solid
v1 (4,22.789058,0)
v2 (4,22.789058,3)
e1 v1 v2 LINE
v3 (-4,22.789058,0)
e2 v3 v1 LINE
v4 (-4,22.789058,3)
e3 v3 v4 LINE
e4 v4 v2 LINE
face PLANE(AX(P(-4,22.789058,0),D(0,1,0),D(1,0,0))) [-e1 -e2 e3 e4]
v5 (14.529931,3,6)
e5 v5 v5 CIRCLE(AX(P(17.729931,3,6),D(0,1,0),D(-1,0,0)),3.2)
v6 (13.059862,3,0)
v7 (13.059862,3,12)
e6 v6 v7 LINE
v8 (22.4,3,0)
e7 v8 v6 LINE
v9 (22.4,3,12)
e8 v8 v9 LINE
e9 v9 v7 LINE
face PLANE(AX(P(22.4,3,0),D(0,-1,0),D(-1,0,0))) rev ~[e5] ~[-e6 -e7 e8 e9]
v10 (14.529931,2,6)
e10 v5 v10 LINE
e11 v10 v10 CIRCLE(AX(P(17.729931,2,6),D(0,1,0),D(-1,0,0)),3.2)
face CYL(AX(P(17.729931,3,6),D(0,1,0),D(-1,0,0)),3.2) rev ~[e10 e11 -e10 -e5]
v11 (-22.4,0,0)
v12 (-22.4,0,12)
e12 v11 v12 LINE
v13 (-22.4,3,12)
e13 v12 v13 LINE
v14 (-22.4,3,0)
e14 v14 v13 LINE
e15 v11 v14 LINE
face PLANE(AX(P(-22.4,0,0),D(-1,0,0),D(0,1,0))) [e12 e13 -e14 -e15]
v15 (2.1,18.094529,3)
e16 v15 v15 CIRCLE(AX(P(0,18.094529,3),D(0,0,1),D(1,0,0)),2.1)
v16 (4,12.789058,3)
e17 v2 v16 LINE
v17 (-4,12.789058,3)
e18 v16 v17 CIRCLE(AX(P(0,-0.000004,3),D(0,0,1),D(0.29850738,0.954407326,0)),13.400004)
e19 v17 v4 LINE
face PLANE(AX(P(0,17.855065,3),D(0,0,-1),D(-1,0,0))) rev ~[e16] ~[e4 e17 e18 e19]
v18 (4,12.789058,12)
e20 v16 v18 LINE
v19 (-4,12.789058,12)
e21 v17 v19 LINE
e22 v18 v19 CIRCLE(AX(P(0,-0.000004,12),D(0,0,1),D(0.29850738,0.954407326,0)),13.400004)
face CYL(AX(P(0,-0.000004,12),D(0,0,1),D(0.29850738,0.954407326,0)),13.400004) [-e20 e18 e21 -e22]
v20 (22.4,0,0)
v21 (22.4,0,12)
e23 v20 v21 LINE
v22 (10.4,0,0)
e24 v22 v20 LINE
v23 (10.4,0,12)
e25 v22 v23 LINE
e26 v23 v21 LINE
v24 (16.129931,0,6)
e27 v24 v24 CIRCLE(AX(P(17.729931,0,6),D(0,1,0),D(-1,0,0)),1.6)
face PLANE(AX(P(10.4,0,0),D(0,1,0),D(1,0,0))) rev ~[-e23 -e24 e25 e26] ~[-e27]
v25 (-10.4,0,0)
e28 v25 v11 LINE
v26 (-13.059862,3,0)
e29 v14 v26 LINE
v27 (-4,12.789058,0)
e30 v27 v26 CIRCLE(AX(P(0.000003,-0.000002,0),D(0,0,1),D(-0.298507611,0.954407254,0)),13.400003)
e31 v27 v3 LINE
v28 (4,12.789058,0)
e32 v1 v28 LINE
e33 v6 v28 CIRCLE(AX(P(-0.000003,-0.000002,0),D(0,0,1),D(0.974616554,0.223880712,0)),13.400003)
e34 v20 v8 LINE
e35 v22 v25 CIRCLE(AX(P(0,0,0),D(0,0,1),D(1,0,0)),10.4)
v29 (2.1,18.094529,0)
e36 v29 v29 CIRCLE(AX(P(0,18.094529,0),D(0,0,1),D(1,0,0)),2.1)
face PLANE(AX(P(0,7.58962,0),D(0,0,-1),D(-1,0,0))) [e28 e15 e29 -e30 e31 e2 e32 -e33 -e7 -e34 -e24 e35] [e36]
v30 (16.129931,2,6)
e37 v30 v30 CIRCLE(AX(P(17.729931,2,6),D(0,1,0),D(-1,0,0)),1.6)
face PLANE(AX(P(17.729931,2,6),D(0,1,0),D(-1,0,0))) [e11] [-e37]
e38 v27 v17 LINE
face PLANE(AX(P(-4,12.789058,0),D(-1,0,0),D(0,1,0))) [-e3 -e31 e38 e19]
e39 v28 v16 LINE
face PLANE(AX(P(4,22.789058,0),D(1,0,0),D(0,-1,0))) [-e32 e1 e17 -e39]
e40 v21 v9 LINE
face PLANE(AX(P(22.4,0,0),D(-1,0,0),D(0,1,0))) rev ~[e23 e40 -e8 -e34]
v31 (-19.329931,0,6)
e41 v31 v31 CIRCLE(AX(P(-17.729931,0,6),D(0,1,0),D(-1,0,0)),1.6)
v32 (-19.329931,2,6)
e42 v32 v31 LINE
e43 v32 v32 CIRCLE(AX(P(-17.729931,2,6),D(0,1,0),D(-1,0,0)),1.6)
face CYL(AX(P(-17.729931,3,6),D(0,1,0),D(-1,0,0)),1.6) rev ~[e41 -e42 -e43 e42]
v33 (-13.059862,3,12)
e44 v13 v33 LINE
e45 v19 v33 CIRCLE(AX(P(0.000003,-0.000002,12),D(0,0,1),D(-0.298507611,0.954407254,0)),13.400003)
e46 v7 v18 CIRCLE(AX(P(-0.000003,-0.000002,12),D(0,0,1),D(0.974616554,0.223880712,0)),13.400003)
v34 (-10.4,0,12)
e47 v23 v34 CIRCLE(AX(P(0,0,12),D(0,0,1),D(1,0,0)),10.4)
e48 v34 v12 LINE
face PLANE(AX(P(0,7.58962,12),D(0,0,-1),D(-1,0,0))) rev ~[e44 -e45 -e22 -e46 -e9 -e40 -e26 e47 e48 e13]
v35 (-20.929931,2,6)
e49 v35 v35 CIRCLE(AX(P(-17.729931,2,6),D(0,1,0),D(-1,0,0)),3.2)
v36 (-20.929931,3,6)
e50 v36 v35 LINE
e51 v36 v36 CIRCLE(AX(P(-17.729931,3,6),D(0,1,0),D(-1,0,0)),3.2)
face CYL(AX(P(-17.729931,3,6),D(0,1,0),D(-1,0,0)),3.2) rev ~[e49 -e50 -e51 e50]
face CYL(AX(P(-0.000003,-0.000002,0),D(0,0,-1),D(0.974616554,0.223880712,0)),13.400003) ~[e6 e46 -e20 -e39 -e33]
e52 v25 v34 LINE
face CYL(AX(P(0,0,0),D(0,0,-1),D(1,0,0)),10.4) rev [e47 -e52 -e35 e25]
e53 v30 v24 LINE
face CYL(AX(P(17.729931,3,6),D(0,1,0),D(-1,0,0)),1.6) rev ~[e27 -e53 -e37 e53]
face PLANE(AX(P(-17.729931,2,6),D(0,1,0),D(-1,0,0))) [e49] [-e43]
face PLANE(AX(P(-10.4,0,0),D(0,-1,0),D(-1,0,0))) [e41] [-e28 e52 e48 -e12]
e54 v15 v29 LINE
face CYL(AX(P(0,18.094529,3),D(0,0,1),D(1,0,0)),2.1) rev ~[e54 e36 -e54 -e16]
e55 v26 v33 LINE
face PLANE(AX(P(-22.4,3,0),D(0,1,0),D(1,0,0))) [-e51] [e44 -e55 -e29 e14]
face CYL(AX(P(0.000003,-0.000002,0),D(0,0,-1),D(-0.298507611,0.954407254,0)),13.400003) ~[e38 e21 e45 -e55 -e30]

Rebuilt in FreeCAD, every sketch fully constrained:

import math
import FreeCAD as App
import Part
import Sketcher

doc = App.newDocument("Part")
body = doc.addObject("PartDesign::Body", "Body")

sketch1 = doc.addObject("Sketcher::SketchObject", "Sketch")
body.addObject(sketch1)
sketch1.AttachmentSupport = (doc.XY_Plane, [""])
sketch1.MapMode = "FlatFace"
sketch1.addGeometry([
    Part.ArcOfCircle(Part.Circle(App.Vector(0, 0, 0), App.Vector(0, 0, 1), 10.4), math.radians(0), math.radians(180)),
    Part.LineSegment(App.Vector(10.4, 0, 0), App.Vector(22.4, 0, 0)),
    Part.LineSegment(App.Vector(22.4, 0, 0), App.Vector(22.4, 3, 0)),
    Part.LineSegment(App.Vector(22.4, 3, 0), App.Vector(13.1, 3, 0)),
    Part.ArcOfCircle(Part.Circle(App.Vector(0, 0, 0), App.Vector(0, 0, 1), 13.4), math.radians(13), math.radians(73)),
    Part.LineSegment(App.Vector(4, 12.8, 0), App.Vector(4, 22.8, 0)),
    Part.LineSegment(App.Vector(4, 22.8, 0), App.Vector(-4, 22.8, 0)),
    Part.LineSegment(App.Vector(-4, 22.8, 0), App.Vector(-4, 12.8, 0)),
    Part.ArcOfCircle(Part.Circle(App.Vector(0, 0, 0), App.Vector(0, 0, 1), 13.4), math.radians(107), math.radians(167)),
    Part.LineSegment(App.Vector(-13.1, 3, 0), App.Vector(-22.4, 3, 0)),
    Part.LineSegment(App.Vector(-22.4, 3, 0), App.Vector(-22.4, 0, 0)),
    Part.LineSegment(App.Vector(-22.4, 0, 0), App.Vector(-10.4, 0, 0)),
], False)
sketch1.addConstraint([
    Sketcher.Constraint("Coincident", 0, 1, 1, 1),
    Sketcher.Constraint("Coincident", 1, 2, 2, 1),
    Sketcher.Constraint("Coincident", 2, 2, 3, 1),
    Sketcher.Constraint("Coincident", 3, 2, 4, 1),
    Sketcher.Constraint("Coincident", 4, 2, 5, 1),
    Sketcher.Constraint("Coincident", 5, 2, 6, 1),
    Sketcher.Constraint("Coincident", 6, 2, 7, 1),
    Sketcher.Constraint("Coincident", 7, 2, 8, 1),
    Sketcher.Constraint("Coincident", 8, 2, 9, 1),
    Sketcher.Constraint("Coincident", 9, 2, 10, 1),
    Sketcher.Constraint("Coincident", 10, 2, 11, 1),
    Sketcher.Constraint("Coincident", 11, 2, 0, 2),
    Sketcher.Constraint("Horizontal", 1),
    Sketcher.Constraint("Vertical", 2),
    Sketcher.Constraint("Horizontal", 3),
    Sketcher.Constraint("Vertical", 5),
    Sketcher.Constraint("Horizontal", 6),
    Sketcher.Constraint("Vertical", 7),
    Sketcher.Constraint("Horizontal", 9),
    Sketcher.Constraint("Vertical", 10),
    Sketcher.Constraint("Horizontal", 11),
    Sketcher.Constraint("Coincident", 0, 3, -1, 1),
    Sketcher.Constraint("Coincident", 4, 3, -1, 1),
    Sketcher.Constraint("Coincident", 8, 3, -1, 1),
    Sketcher.Constraint("Equal", 4, 8),
    Sketcher.Constraint("Symmetric", 1, 2, 10, 2, -1, 1),
    Sketcher.Constraint("PointOnObject", 0, 1, -1),
    Sketcher.Constraint("Horizontal", 4, 2, 7, 2),
    Sketcher.Constraint("Horizontal", 3, 2, 8, 2),
    Sketcher.Constraint("Radius", 0, 10.4),
    Sketcher.Constraint("DistanceX", 1, 1, 1, 2, 12.0),
    Sketcher.Constraint("DistanceX", 6, 2, 6, 1, 8.0),
    Sketcher.Constraint("DistanceY", 2, 1, 2, 2, 3.0),
    Sketcher.Constraint("DistanceY", 5, 1, 5, 2, 10.0),
    Sketcher.Constraint("Radius", 4, 13.400003),
])
pad1 = doc.addObject("PartDesign::Pad", "Pad")
body.addObject(pad1)
pad1.Profile = sketch1
pad1.Length = 12

sketch2 = doc.addObject("Sketcher::SketchObject", "Sketch001")
body.addObject(sketch2)
sketch2.AttachmentSupport = (doc.XY_Plane, [""])
sketch2.MapMode = "FlatFace"
sketch2.AttachmentOffset = App.Placement(App.Vector(0, 0, 12), App.Rotation())
sketch2.addGeometry([
    Part.LineSegment(App.Vector(-4, 23, 0), App.Vector(-4, 13, 0)),
    Part.ArcOfCircle(Part.Circle(App.Vector(0, 0, 0), App.Vector(0, 0, 1), 13), math.radians(73), math.radians(107)),
    Part.LineSegment(App.Vector(4, 13, 0), App.Vector(4, 23, 0)),
    Part.LineSegment(App.Vector(4, 23, 0), App.Vector(-4, 23, 0)),
], False)
sketch2.addConstraint([
    Sketcher.Constraint("Coincident", 0, 2, 1, 2),
    Sketcher.Constraint("Coincident", 1, 1, 2, 1),
    Sketcher.Constraint("Coincident", 2, 2, 3, 1),
    Sketcher.Constraint("Coincident", 3, 2, 0, 1),
    Sketcher.Constraint("Vertical", 0),
    Sketcher.Constraint("Vertical", 2),
    Sketcher.Constraint("Horizontal", 3),
    Sketcher.Constraint("Coincident", 1, 3, -1, 1),
    Sketcher.Constraint("Horizontal", 0, 2, 1, 1),
    Sketcher.Constraint("DistanceX", 3, 2, 3, 1, 8.0),
    Sketcher.Constraint("DistanceY", 0, 2, 0, 1, 10.0),
    Sketcher.Constraint("Radius", 1, 13.400004),
])
pocket1 = doc.addObject("PartDesign::Pocket", "Pocket")
body.addObject(pocket1)
pocket1.Profile = sketch2
pocket1.Length = 9

sketch3 = doc.addObject("Sketcher::SketchObject", "Sketch002")
body.addObject(sketch3)
sketch3.AttachmentSupport = (doc.XY_Plane, [""])
sketch3.MapMode = "FlatFace"
sketch3.AttachmentOffset = App.Placement(App.Vector(0, 0, 3), App.Rotation())
sketch3.addGeometry(Part.Circle(App.Vector(0, 18.1, 0), App.Vector(0, 0, 1), 2.1), False)
sketch3.addConstraint([
    Sketcher.Constraint("PointOnObject", 0, 3, -2),
    Sketcher.Constraint("Diameter", 0, 4.2),
    Sketcher.Constraint("DistanceY", -1, 1, 0, 3, 18.094529),
])
pocket2 = doc.addObject("PartDesign::Pocket", "Pocket001")
body.addObject(pocket2)
pocket2.Profile = sketch3
pocket2.Length = 3

sketch4 = doc.addObject("Sketcher::SketchObject", "Sketch003")
body.addObject(sketch4)
sketch4.AttachmentSupport = (doc.XZ_Plane, [""])
sketch4.MapMode = "FlatFace"
sketch4.AttachmentOffset = App.Placement(App.Vector(0, 0, -3), App.Rotation())
sketch4.addGeometry([
    Part.Circle(App.Vector(17.7, 6, 0), App.Vector(0, 0, 1), 1.6),
    Part.Circle(App.Vector(-17.7, 6, 0), App.Vector(0, 0, 1), 1.6),
], False)
sketch4.addConstraint([
    Sketcher.Constraint("Equal", 0, 1),
    Sketcher.Constraint("Symmetric", 0, 3, 1, 3, -2),
    Sketcher.Constraint("Diameter", 0, 3.2),
    Sketcher.Constraint("DistanceY", -1, 1, 0, 3, 6.0),
    Sketcher.Constraint("DistanceX", -1, 1, 0, 3, 17.729931),
])
pocket3 = doc.addObject("PartDesign::Pocket", "Pocket002")
body.addObject(pocket3)
pocket3.Profile = sketch4
pocket3.Type = "ThroughAll"
pocket3.Reversed = True

sketch5 = doc.addObject("Sketcher::SketchObject", "Sketch004")
body.addObject(sketch5)
sketch5.AttachmentSupport = (doc.XZ_Plane, [""])
sketch5.MapMode = "FlatFace"
sketch5.AttachmentOffset = App.Placement(App.Vector(0, 0, -3), App.Rotation())
sketch5.addGeometry([
    Part.Circle(App.Vector(17.7, 6, 0), App.Vector(0, 0, 1), 3.2),
    Part.Circle(App.Vector(-17.7, 6, 0), App.Vector(0, 0, 1), 3.2),
], False)
sketch5.addConstraint([
    Sketcher.Constraint("Equal", 0, 1),
    Sketcher.Constraint("Symmetric", 0, 3, 1, 3, -2),
    Sketcher.Constraint("Diameter", 0, 6.4),
    Sketcher.Constraint("DistanceY", -1, 1, 0, 3, 6.0),
    Sketcher.Constraint("DistanceX", -1, 1, 0, 3, 17.729931),
])
pocket4 = doc.addObject("PartDesign::Pocket", "Pocket003")
body.addObject(pocket4)
pocket4.Profile = sketch5
pocket4.Length = 1
pocket4.Reversed = True

doc.recompute()
